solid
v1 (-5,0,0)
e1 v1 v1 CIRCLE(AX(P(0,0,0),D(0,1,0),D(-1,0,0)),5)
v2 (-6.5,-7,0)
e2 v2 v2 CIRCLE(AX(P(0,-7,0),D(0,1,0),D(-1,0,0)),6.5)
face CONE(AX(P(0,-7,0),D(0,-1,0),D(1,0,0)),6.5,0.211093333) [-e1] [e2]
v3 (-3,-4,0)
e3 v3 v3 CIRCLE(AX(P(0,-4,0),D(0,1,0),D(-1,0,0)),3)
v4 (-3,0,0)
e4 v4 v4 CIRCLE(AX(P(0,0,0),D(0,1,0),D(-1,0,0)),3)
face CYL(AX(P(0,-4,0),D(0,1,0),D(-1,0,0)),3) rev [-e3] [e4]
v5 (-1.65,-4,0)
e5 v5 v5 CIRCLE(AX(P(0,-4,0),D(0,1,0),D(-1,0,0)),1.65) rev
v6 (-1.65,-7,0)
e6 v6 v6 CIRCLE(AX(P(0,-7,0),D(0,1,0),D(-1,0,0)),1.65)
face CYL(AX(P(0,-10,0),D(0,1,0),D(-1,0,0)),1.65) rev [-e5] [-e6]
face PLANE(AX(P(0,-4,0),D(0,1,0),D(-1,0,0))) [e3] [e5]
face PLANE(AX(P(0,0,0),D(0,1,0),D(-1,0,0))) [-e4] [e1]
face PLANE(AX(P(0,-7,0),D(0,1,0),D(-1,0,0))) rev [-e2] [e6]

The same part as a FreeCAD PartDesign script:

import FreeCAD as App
import Part
import Sketcher
Q = App.Units.Quantity


def add_polygon(sketch, points):
    """Adds a closed chain of lines whose ends are joined by coincident constraints."""
    first, n = sketch.GeometryCount, len(points)
    for a, b in zip(points, points[1:] + points[:1]):
        sketch.addGeometry(Part.LineSegment(App.Vector(*a, 0), App.Vector(*b, 0)), False)
    for i in range(n):
        sketch.addConstraint(Sketcher.Constraint("Coincident", first + i, 2, first + (i + 1) % n, 1))

doc = App.newDocument("Part")
body = doc.addObject("PartDesign::Body", "Body")

sketch1 = body.newObject("Sketcher::SketchObject", "Sketch")
sketch1.AttachmentSupport = (doc.getObject("XY_Plane"), [""])
sketch1.MapMode = "FlatFace"
add_polygon(sketch1, [(0, -7), (6, -7), (5, 0), (0, 0)])
sketch1.addConstraint(Sketcher.Constraint("Horizontal", 0))
sketch1.addConstraint(Sketcher.Constraint("Horizontal", 2))
sketch1.addConstraint(Sketcher.Constraint("Vertical", 3))
sketch1.addConstraint(Sketcher.Constraint("Coincident", 2, 2, -1, 1))
sketch1.addConstraint(Sketcher.Constraint("DistanceX", 2, 2, 2, 1, Q("5 mm")))
sketch1.addConstraint(Sketcher.Constraint("DistanceY", 3, 2, 3, 1, Q("7 mm")))
sketch1.addConstraint(Sketcher.Constraint("DistanceX", 0, 1, 0, 2, Q("6.5 mm")))
revolution = body.newObject("PartDesign::Revolution", "Revolution")
revolution.Profile = sketch1
revolution.ReferenceAxis = (sketch1, ["V_Axis"])
revolution.Angle = 360

sketch2 = body.newObject("Sketcher::SketchObject", "Sketch001")
sketch2.AttachmentSupport = (doc.getObject("XZ_Plane"), [""])
sketch2.MapMode = "FlatFace"
sketch2.addGeometry(Part.Circle(App.Vector(0, 0, 0), App.Vector(0, 0, 1), 1.6), False)
sketch2.addConstraint(Sketcher.Constraint("Coincident", 0, 3, -1, 1))
sketch2.addConstraint(Sketcher.Constraint("Diameter", 0, Q("3.3 mm")))
pocket1 = body.newObject("PartDesign::Pocket", "Pocket")
pocket1.Profile = sketch2
pocket1.Length = 10
pocket1.Reversed = True

sketch3 = body.newObject("Sketcher::SketchObject", "Sketch002")
sketch3.AttachmentSupport = (doc.getObject("XZ_Plane"), [""])
sketch3.MapMode = "FlatFace"
sketch3.addGeometry(Part.Circle(App.Vector(0, 0, 0), App.Vector(0, 0, 1), 3), False)
sketch3.addConstraint(Sketcher.Constraint("Coincident", 0, 3, -1, 1))
sketch3.addConstraint(Sketcher.Constraint("Diameter", 0, Q("6 mm")))
pocket2 = body.newObject("PartDesign::Pocket", "Pocket001")
pocket2.Profile = sketch3
pocket2.Length = 4
pocket2.Reversed = True

doc.recompute()
